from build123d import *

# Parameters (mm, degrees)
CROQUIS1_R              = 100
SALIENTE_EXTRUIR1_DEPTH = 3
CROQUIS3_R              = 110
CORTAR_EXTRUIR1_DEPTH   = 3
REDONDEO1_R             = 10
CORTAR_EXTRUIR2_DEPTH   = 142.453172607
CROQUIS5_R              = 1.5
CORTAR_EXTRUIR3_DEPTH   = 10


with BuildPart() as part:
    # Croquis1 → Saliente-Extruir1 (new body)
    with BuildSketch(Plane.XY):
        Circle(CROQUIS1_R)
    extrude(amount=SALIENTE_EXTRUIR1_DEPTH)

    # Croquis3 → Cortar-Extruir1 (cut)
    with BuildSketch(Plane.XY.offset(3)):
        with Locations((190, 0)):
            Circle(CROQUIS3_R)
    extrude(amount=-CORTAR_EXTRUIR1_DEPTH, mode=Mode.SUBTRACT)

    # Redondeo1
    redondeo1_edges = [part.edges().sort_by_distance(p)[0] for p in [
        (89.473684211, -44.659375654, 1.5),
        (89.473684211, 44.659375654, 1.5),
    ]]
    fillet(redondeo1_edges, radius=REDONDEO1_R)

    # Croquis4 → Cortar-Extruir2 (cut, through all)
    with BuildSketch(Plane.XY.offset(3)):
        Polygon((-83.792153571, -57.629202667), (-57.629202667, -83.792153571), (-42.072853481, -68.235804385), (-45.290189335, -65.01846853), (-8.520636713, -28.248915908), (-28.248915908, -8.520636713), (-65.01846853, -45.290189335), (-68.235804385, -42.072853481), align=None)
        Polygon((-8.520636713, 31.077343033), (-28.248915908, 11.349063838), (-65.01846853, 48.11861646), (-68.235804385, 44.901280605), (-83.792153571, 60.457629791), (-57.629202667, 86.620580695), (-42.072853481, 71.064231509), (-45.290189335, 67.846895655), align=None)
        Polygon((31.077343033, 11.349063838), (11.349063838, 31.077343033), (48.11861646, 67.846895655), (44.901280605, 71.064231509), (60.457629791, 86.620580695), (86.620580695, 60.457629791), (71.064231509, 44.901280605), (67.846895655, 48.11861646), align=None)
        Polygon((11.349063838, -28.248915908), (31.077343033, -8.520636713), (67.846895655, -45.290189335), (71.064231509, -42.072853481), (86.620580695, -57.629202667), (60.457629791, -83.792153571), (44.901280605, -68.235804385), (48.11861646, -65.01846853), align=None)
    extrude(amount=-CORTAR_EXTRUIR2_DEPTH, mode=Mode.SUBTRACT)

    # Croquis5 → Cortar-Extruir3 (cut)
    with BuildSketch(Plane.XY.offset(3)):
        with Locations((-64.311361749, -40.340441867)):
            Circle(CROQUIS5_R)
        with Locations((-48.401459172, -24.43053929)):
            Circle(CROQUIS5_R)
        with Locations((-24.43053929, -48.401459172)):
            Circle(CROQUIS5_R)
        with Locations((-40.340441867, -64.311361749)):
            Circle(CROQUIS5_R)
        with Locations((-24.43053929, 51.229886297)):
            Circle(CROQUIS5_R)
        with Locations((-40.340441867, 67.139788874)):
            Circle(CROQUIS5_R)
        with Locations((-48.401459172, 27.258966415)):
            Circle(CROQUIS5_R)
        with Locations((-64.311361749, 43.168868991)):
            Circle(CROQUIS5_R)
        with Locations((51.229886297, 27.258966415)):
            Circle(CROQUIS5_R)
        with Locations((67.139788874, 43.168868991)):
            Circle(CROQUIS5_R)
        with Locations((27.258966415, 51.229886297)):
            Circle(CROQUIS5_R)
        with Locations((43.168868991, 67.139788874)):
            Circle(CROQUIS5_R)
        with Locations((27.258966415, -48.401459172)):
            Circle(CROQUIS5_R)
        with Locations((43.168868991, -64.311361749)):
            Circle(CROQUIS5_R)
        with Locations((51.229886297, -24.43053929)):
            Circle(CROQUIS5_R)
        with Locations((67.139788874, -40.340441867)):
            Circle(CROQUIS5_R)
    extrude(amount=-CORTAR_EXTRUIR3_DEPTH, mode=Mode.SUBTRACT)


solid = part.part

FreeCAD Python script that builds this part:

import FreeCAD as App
import Part
import Sketcher

V = App.Vector


def edges_at(feature, points):
    """Names of the edges that pass closest to the given points."""
    edges = feature.Shape.Edges
    near = lambda p: min(range(len(edges)), key=lambda i: edges[i].distToShape(Part.Vertex(*p))[0])
    return sorted({f"Edge{near(p) + 1}" for p in points})


def add_polygon(sketch, points):
    """Adds a closed chain of lines whose ends are joined by coincident constraints."""
    first, n = sketch.GeometryCount, len(points)
    for a, b in zip(points, points[1:] + points[:1]):
        sketch.addGeometry(Part.LineSegment(App.Vector(*a, 0), App.Vector(*b, 0)), False)
    for i in range(n):
        sketch.addConstraint(Sketcher.Constraint("Coincident", first + i, 2, first + (i + 1) % n, 1))

doc = App.newDocument("Part")
params = doc.addObject("Spreadsheet::Sheet", "Params")
for row, (alias, value) in enumerate([
    ("sketch1_diameter", "200 mm"),
    ("pad1_length", "3 mm"),
    ("sketch2_diameter", "220 mm"),
    ("pocket1_length", "3 mm"),
    ("fillet_radius", "10 mm"),
    ("sketch3_length", "37 mm"),
    ("sketch3_length2", "22 mm"),
    ("sketch3_length3", "52 mm"),
    ("sketch3_length4", "27.9 mm"),
    ("sketch4_diameter", "3 mm"),
    ("pocket3_length", "10 mm"),
], start=1):
    params.set(f"A{row}", alias)
    params.set(f"B{row}", "=" + value)
    params.setAlias(f"B{row}", alias)

body = doc.addObject("PartDesign::Body", "Body")

# Sketch on XY plane
sketch1 = doc.addObject("Sketcher::SketchObject", "Sketch")
body.addObject(sketch1)
sketch1.AttachmentSupport = (doc.XY_Plane, [""])
sketch1.MapMode = "FlatFace"
sketch1.addGeometry(Part.Circle(V(0, 0, 0), V(0, 0, 1), 100), False)
sketch1.addConstraint([
    Sketcher.Constraint("Coincident", 0, 3, -1, 1),
    Sketcher.Constraint("Diameter", 0, 200.0),
])
sketch1.setExpression("Constraints[1]", "Params.sketch1_diameter")
pad1 = doc.addObject("PartDesign::Pad", "Pad")
body.addObject(pad1)
pad1.Profile = sketch1
pad1.setExpression("Length", "Params.pad1_length")

# Sketch on XY plane
sketch2 = doc.addObject("Sketcher::SketchObject", "Sketch001")
body.addObject(sketch2)
sketch2.AttachmentSupport = (doc.XY_Plane, [""])
sketch2.MapMode = "FlatFace"
sketch2.AttachmentOffset = App.Placement(V(0, 0, 3), App.Rotation())
sketch2.addGeometry(Part.Circle(V(190, 0, 0), V(0, 0, 1), 110), False)
sketch2.addConstraint([
    Sketcher.Constraint("PointOnObject", 0, 3, -1),
    Sketcher.Constraint("Diameter", 0, 220.0),
    Sketcher.Constraint("DistanceX", -1, 1, 0, 3, 190.0),
])
sketch2.setExpression("Constraints[1]", "Params.sketch2_diameter")
pocket1 = doc.addObject("PartDesign::Pocket", "Pocket")
body.addObject(pocket1)
pocket1.Profile = sketch2
pocket1.setExpression("Length", "Params.pocket1_length")
doc.recompute()

fillet = doc.addObject("PartDesign::Fillet", "Fillet")
body.addObject(fillet)
fillet.Base = (pocket1, edges_at(pocket1, [(89.474, -44.659, 1.5), (89.474, 44.659, 1.5)]))
fillet.setExpression("Radius", "Params.fillet_radius")

# Sketch on XY plane
sketch3 = doc.addObject("Sketcher::SketchObject", "Sketch002")
body.addObject(sketch3)
sketch3.AttachmentSupport = (doc.XY_Plane, [""])
sketch3.MapMode = "FlatFace"
sketch3.AttachmentOffset = App.Placement(V(0, 0, 3), App.Rotation())
add_polygon(sketch3, [(-83.8, -57.6), (-57.6, -83.8), (-42.1, -68.2), (-45.3, -65), (-8.5, -28.2), (-28.2, -8.5), (-65, -45.3), (-68.2, -42.1)])  # lines 0-7
add_polygon(sketch3, [(-28.2, 11.3), (-8.5, 31.1), (-45.3, 67.8), (-42.1, 71.1), (-57.6, 86.6), (-83.8, 60.5), (-68.2, 44.9), (-65, 48.1)])  # lines 8-15
add_polygon(sketch3, [(11.3, 31.1), (31.1, 11.3), (67.8, 48.1), (71.1, 44.9), (86.6, 60.5), (60.5, 86.6), (44.9, 71.1), (48.1, 67.8)])  # lines 16-23
add_polygon(sketch3, [(31.1, -8.5), (11.3, -28.2), (48.1, -65), (44.9, -68.2), (60.5, -83.8), (86.6, -57.6), (71.1, -42.1), (67.8, -45.3)])  # lines 24-31
sketch3.addConstraint([
    Sketcher.Constraint("Perpendicular", 0, 1),
    Sketcher.Constraint("Perpendicular", 1, 2),
    Sketcher.Constraint("Perpendicular", 2, 3),
    Sketcher.Constraint("Perpendicular", 3, 4),
    Sketcher.Constraint("Perpendicular", 4, 5),
    Sketcher.Constraint("Perpendicular", 5, 6),
    Sketcher.Constraint("Perpendicular", 6, 7),
    Sketcher.Constraint("Parallel", 7, 8),
    Sketcher.Constraint("Perpendicular", 8, 9),
    Sketcher.Constraint("Perpendicular", 9, 10),
    Sketcher.Constraint("Perpendicular", 10, 11),
    Sketcher.Constraint("Perpendicular", 11, 12),
    Sketcher.Constraint("Perpendicular", 12, 13),
    Sketcher.Constraint("Perpendicular", 13, 14),
    Sketcher.Constraint("Perpendicular", 14, 15),
    Sketcher.Constraint("Parallel", 15, 16),
    Sketcher.Constraint("Perpendicular", 16, 17),
    Sketcher.Constraint("Perpendicular", 17, 18),
    Sketcher.Constraint("Perpendicular", 18, 19),
    Sketcher.Constraint("Perpendicular", 19, 20),
    Sketcher.Constraint("Perpendicular", 20, 21),
    Sketcher.Constraint("Perpendicular", 21, 22),
    Sketcher.Constraint("Perpendicular", 22, 23),
    Sketcher.Constraint("Parallel", 23, 24),
    Sketcher.Constraint("Perpendicular", 24, 25),
    Sketcher.Constraint("Perpendicular", 25, 26),
    Sketcher.Constraint("Perpendicular", 26, 27),
    Sketcher.Constraint("Perpendicular", 27, 28),
    Sketcher.Constraint("Perpendicular", 28, 29),
    Sketcher.Constraint("Perpendicular", 29, 30),
    Sketcher.Constraint("Perpendicular", 30, 31),
    Sketcher.Constraint("Horizontal", 15, 2, 16, 2),
    Sketcher.Constraint("Horizontal", 14, 2, 17, 2),
    Sketcher.Constraint("Horizontal", 13, 2, 18, 2),
    Sketcher.Constraint("Horizontal", 12, 2, 19, 2),
    Sketcher.Constraint("Horizontal", 11, 2, 20, 2),
    Sketcher.Constraint("Horizontal", 10, 2, 21, 2),
    Sketcher.Constraint("Horizontal", 9, 2, 22, 2),
    Sketcher.Constraint("Horizontal", 3, 2, 24, 2),
    Sketcher.Constraint("Horizontal", 2, 2, 25, 2),
    Sketcher.Constraint("Horizontal", 1, 2, 26, 2),
    Sketcher.Constraint("Horizontal", 0, 2, 27, 2),
    Sketcher.Constraint("Horizontal", 7, 2, 28, 2),
    Sketcher.Constraint("Horizontal", 6, 2, 29, 2),
    Sketcher.Constraint("Horizontal", 5, 2, 30, 2),
    Sketcher.Constraint("Vertical", 3, 2, 8, 2),
    Sketcher.Constraint("Vertical", 2, 2, 9, 2),
    Sketcher.Constraint("Vertical", 1, 2, 10, 2),
    Sketcher.Constraint("Vertical", 0, 2, 11, 2),
    Sketcher.Constraint("Vertical", 7, 2, 12, 2),
    Sketcher.Constraint("Vertical", 6, 2, 13, 2),
    Sketcher.Constraint("Vertical", 5, 2, 14, 2),
    Sketcher.Constraint("Vertical", 23, 2, 24, 2),
    Sketcher.Constraint("Vertical", 22, 2, 25, 2),
    Sketcher.Constraint("Equal", 3, 5),
    Sketcher.Constraint("Equal", 2, 6),
    Sketcher.Constraint("Distance", 0, 37.0),
    Sketcher.Constraint("Distance", 1, 22.0),
    Sketcher.Constraint("Distance", 3, 52.0),
    Sketcher.Constraint("Distance", 4, 27.9),
    Sketcher.Constraint("DistanceY", 4, 2, 15, 2, 19.869701),
    Sketcher.Constraint("DistanceX", 8, 2, 23, 2, 19.869701),
    Sketcher.Constraint("DistanceX", 2, 2, -1, 1, 45.290189),
    Sketcher.Constraint("DistanceY", 2, 2, -1, 1, 65.018469),
])
sketch3.setExpression("Constraints[88]", "Params.sketch3_length")
sketch3.setExpression("Constraints[89]", "Params.sketch3_length2")
sketch3.setExpression("Constraints[90]", "Params.sketch3_length3")
sketch3.setExpression("Constraints[91]", "Params.sketch3_length4")
pocket2 = doc.addObject("PartDesign::Pocket", "Pocket001")
body.addObject(pocket2)
pocket2.Profile = sketch3
pocket2.Type = "ThroughAll"

# Sketch on XY plane
sketch4 = doc.addObject("Sketcher::SketchObject", "Sketch003")
body.addObject(sketch4)
sketch4.AttachmentSupport = (doc.XY_Plane, [""])
sketch4.MapMode = "FlatFace"
sketch4.AttachmentOffset = App.Placement(V(0, 0, 3), App.Rotation())
sketch4.addGeometry([
    Part.Circle(V(-64.3, -40.3, 0), V(0, 0, 1), 1.5),  # 0
    Part.Circle(V(-48.4, -24.4, 0), V(0, 0, 1), 1.5),  # 1
    Part.Circle(V(-24.4, -48.4, 0), V(0, 0, 1), 1.5),  # 2
    Part.Circle(V(-40.3, -64.3, 0), V(0, 0, 1), 1.5),  # 3
    Part.Circle(V(-24.4, 51.2, 0), V(0, 0, 1), 1.5),  # 4
    Part.Circle(V(-40.3, 67.1, 0), V(0, 0, 1), 1.5),  # 5
    Part.Circle(V(-48.4, 27.3, 0), V(0, 0, 1), 1.5),  # 6
    Part.Circle(V(-64.3, 43.2, 0), V(0, 0, 1), 1.5),  # 7
    Part.Circle(V(51.2, 27.3, 0), V(0, 0, 1), 1.5),  # 8
    Part.Circle(V(67.1, 43.2, 0), V(0, 0, 1), 1.5),  # 9
    Part.Circle(V(27.3, 51.2, 0), V(0, 0, 1), 1.5),  # 10
    Part.Circle(V(43.2, 67.1, 0), V(0, 0, 1), 1.5),  # 11
    Part.Circle(V(27.3, -48.4, 0), V(0, 0, 1), 1.5),  # 12
    Part.Circle(V(43.2, -64.3, 0), V(0, 0, 1), 1.5),  # 13
    Part.Circle(V(51.2, -24.4, 0), V(0, 0, 1), 1.5),  # 14
    Part.Circle(V(67.1, -40.3, 0), V(0, 0, 1), 1.5),  # 15
], False)
sketch4.addConstraint([
    Sketcher.Constraint("Equal", 0, 1),
    Sketcher.Constraint("Equal", 1, 2),
    Sketcher.Constraint("Equal", 2, 3),
    Sketcher.Constraint("Equal", 3, 4),
    Sketcher.Constraint("Equal", 4, 5),
    Sketcher.Constraint("Equal", 5, 6),
    Sketcher.Constraint("Equal", 6, 7),
    Sketcher.Constraint("Equal", 7, 8),
    Sketcher.Constraint("Equal", 8, 9),
    Sketcher.Constraint("Equal", 9, 10),
    Sketcher.Constraint("Equal", 10, 11),
    Sketcher.Constraint("Equal", 11, 12),
    Sketcher.Constraint("Equal", 12, 13),
    Sketcher.Constraint("Equal", 13, 14),
    Sketcher.Constraint("Equal", 14, 15),
    Sketcher.Constraint("Horizontal", 6, 3, 8, 3),
    Sketcher.Constraint("Horizontal", 7, 3, 9, 3),
    Sketcher.Constraint("Horizontal", 4, 3, 10, 3),
    Sketcher.Constraint("Horizontal", 5, 3, 11, 3),
    Sketcher.Constraint("Horizontal", 2, 3, 12, 3),
    Sketcher.Constraint("Horizontal", 3, 3, 13, 3),
    Sketcher.Constraint("Horizontal", 1, 3, 14, 3),
    Sketcher.Constraint("Horizontal", 0, 3, 15, 3),
    Sketcher.Constraint("Vertical", 2, 3, 4, 3),
    Sketcher.Constraint("Vertical", 3, 3, 5, 3),
    Sketcher.Constraint("Vertical", 1, 3, 6, 3),
    Sketcher.Constraint("Vertical", 0, 3, 7, 3),
    Sketcher.Constraint("Vertical", 10, 3, 12, 3),
    Sketcher.Constraint("Vertical", 11, 3, 13, 3),
    Sketcher.Constraint("Vertical", 8, 3, 14, 3),
    Sketcher.Constraint("Vertical", 9, 3, 15, 3),
    Sketcher.Constraint("Diameter", 0, 3.0),
    Sketcher.Constraint("DistanceX", 0, 3, -1, 1, 64.311362),
    Sketcher.Constraint("DistanceY", 0, 3, -1, 1, 40.340442),
    Sketcher.Constraint("DistanceX", 1, 3, -1, 1, 48.401459),
    Sketcher.Constraint("DistanceY", 1, 3, -1, 1, 24.430539),
    Sketcher.Constraint("DistanceX", 2, 3, -1, 1, 24.430539),
    Sketcher.Constraint("DistanceY", 2, 3, -1, 1, 48.401459),
    Sketcher.Constraint("DistanceX", 3, 3, -1, 1, 40.340442),
    Sketcher.Constraint("DistanceY", 3, 3, -1, 1, 64.311362),
    Sketcher.Constraint("DistanceY", -1, 1, 5, 3, 67.139789),
    Sketcher.Constraint("DistanceY", -1, 1, 7, 3, 43.168869),
    Sketcher.Constraint("DistanceX", -1, 1, 9, 3, 67.139789),
    Sketcher.Constraint("DistanceX", -1, 1, 11, 3, 43.168869),
    Sketcher.Constraint("DistanceY", 0, 3, 4, 3, 91.570328),
    Sketcher.Constraint("DistanceY", 6, 3, 4, 3, 23.97092),
    Sketcher.Constraint("DistanceX", 5, 3, 8, 3, 91.570328),
    Sketcher.Constraint("DistanceX", 10, 3, 8, 3, 23.97092),
])
sketch4.setExpression("Constraints[31]", "Params.sketch4_diameter")
pocket3 = doc.addObject("PartDesign::Pocket", "Pocket002")
body.addObject(pocket3)
pocket3.Profile = sketch4
pocket3.setExpression("Length", "Params.pocket3_length")

doc.recompute()
